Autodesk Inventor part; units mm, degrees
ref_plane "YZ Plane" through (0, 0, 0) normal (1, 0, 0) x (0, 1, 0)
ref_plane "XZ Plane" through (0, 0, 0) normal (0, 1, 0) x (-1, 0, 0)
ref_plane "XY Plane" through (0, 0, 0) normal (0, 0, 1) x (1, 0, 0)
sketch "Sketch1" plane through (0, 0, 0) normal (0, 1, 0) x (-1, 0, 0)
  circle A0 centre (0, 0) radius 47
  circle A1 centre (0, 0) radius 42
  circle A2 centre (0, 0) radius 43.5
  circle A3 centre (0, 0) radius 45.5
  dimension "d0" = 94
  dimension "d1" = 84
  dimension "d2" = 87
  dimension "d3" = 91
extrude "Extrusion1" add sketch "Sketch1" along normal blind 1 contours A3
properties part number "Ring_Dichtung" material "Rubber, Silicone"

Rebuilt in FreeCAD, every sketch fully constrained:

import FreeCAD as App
import Part
import Sketcher

V = App.Vector
Q = App.Units.Quantity

doc = App.newDocument("Part")
params = doc.addObject("Spreadsheet::Sheet", "Params")
for row, (alias, value) in enumerate([
    ("sketch1_diameter", "91 mm"),
    ("sketch1_diameter2", "87 mm"),
    ("pad1_length", "1 mm"),
], start=1):
    params.set(f"A{row}", alias)
    params.set(f"B{row}", "=" + value)
    params.setAlias(f"B{row}", alias)

body = doc.addObject("PartDesign::Body", "Body")

# Sketch on XZ plane
sketch1 = body.newObject("Sketcher::SketchObject", "Sketch")
sketch1.AttachmentSupport = (doc.getObject("XZ_Plane"), [""])
sketch1.MapMode = "FlatFace"
sketch1.addGeometry([
    Part.Circle(V(0, 0, 0), V(0, 0, 1), 46),
    Part.Circle(V(0, 0, 0), V(0, 0, 1), 44),
], False)
sketch1.addConstraint([
    Sketcher.Constraint("Coincident", 0, 3, -1, 1),
    Sketcher.Constraint("Coincident", 1, 3, -1, 1),
    Sketcher.Constraint("Diameter", 0, Q("91 mm")),
    Sketcher.Constraint("Diameter", 1, Q("87 mm")),
])
sketch1.setExpression("Constraints[2]", "Params.sketch1_diameter")
sketch1.setExpression("Constraints[3]", "Params.sketch1_diameter2")
pad1 = body.newObject("PartDesign::Pad", "Pad")
pad1.Profile = sketch1
pad1.setExpression("Length", "Params.pad1_length")
pad1.Reversed = True

doc.recompute()
